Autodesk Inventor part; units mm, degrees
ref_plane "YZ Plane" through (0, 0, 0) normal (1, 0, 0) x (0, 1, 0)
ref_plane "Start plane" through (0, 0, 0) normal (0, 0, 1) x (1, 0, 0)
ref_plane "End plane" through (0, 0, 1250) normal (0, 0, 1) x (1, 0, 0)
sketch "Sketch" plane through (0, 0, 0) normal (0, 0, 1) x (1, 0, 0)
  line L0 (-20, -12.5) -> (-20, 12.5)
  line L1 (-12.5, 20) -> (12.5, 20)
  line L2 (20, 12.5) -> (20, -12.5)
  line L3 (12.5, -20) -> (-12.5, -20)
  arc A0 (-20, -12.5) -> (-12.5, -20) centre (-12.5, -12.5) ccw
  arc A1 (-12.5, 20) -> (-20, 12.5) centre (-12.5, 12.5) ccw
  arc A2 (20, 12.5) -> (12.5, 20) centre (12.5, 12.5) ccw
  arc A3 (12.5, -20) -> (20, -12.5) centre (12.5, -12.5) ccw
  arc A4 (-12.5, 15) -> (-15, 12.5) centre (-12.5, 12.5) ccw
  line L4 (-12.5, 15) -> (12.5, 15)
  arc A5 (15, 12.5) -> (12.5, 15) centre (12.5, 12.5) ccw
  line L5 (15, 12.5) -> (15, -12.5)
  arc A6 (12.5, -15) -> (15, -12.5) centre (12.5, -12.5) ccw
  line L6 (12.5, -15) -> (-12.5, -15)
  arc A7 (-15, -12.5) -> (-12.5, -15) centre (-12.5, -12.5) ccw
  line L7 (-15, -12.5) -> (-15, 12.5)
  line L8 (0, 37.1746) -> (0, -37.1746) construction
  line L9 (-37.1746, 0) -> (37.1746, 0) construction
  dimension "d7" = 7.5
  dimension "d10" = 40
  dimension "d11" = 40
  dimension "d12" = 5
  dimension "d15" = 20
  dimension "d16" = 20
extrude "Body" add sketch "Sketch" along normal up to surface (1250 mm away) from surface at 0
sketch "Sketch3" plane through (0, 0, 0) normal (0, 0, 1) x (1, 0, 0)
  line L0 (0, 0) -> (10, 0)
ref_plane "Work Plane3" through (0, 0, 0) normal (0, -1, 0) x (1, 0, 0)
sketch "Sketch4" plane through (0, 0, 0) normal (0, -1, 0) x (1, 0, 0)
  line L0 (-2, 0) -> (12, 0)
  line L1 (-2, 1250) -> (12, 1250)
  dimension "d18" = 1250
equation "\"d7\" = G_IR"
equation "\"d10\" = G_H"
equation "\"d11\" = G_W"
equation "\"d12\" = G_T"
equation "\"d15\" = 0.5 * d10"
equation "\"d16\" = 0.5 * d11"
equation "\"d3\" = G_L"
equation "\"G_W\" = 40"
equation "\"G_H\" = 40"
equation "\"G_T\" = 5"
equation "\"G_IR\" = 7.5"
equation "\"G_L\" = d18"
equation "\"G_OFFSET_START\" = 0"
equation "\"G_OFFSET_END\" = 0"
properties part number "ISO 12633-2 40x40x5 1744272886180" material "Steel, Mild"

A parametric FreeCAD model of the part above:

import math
import FreeCAD as App
import Part
import Sketcher

V = App.Vector

doc = App.newDocument("Part")
params = doc.addObject("Spreadsheet::Sheet", "Params")
for row, (alias, value) in enumerate([
    ("sketch1_radius", "7.5 mm"),
    ("sketch1_radius2", "2.5 mm"),
    ("pad1_length", "1250 mm"),
], start=1):
    params.set(f"A{row}", alias)
    params.set(f"B{row}", "=" + value)
    params.setAlias(f"B{row}", alias)

body = doc.addObject("PartDesign::Body", "Body")

sketch1 = body.newObject("Sketcher::SketchObject", "Sketch")
sketch1.AttachmentSupport = (doc.getObject("XY_Plane"), [""])
sketch1.MapMode = "FlatFace"
sketch1.addGeometry([
    Part.LineSegment(V(-20, 12.5, 0), V(-20, -12.5, 0)),
    Part.ArcOfCircle(Part.Circle(V(-12.5, -12.5, 0), V(0, 0, 1), 7.5), math.radians(180), math.radians(270)),
    Part.LineSegment(V(-12.5, -20, 0), V(12.5, -20, 0)),
    Part.ArcOfCircle(Part.Circle(V(12.5, -12.5, 0), V(0, 0, 1), 7.5), math.radians(-90), math.radians(0)),
    Part.LineSegment(V(20, -12.5, 0), V(20, 12.5, 0)),
    Part.ArcOfCircle(Part.Circle(V(12.5, 12.5, 0), V(0, 0, 1), 7.5), math.radians(0), math.radians(90)),
    Part.LineSegment(V(12.5, 20, 0), V(-12.5, 20, 0)),
    Part.ArcOfCircle(Part.Circle(V(-12.5, 12.5, 0), V(0, 0, 1), 7.5), math.radians(90), math.radians(180)),
    Part.ArcOfCircle(Part.Circle(V(-12.5, 12.5, 0), V(0, 0, 1), 2.5), math.radians(90), math.radians(180)),
    Part.LineSegment(V(-12.5, 15, 0), V(12.5, 15, 0)),
    Part.ArcOfCircle(Part.Circle(V(12.5, 12.5, 0), V(0, 0, 1), 2.5), math.radians(0), math.radians(90)),
    Part.LineSegment(V(15, 12.5, 0), V(15, -12.5, 0)),
    Part.ArcOfCircle(Part.Circle(V(12.5, -12.5, 0), V(0, 0, 1), 2.5), math.radians(-90), math.radians(0)),
    Part.LineSegment(V(12.5, -15, 0), V(-12.5, -15, 0)),
    Part.ArcOfCircle(Part.Circle(V(-12.5, -12.5, 0), V(0, 0, 1), 2.5), math.radians(180), math.radians(270)),
    Part.LineSegment(V(-15, -12.5, 0), V(-15, 12.5, 0)),
], False)
sketch1.addConstraint([
    Sketcher.Constraint("Tangent", 0, 2, 1, 1),
    Sketcher.Constraint("Tangent", 1, 2, 2, 1),
    Sketcher.Constraint("Tangent", 2, 2, 3, 1),
    Sketcher.Constraint("Tangent", 3, 2, 4, 1),
    Sketcher.Constraint("Tangent", 4, 2, 5, 1),
    Sketcher.Constraint("Tangent", 5, 2, 6, 1),
    Sketcher.Constraint("Tangent", 6, 2, 7, 1),
    Sketcher.Constraint("Tangent", 7, 2, 0, 1),
    Sketcher.Constraint("Tangent", 8, 1, 9, 1),
    Sketcher.Constraint("Tangent", 9, 2, 10, 2),
    Sketcher.Constraint("Tangent", 10, 1, 11, 1),
    Sketcher.Constraint("Tangent", 11, 2, 12, 2),
    Sketcher.Constraint("Tangent", 12, 1, 13, 1),
    Sketcher.Constraint("Tangent", 13, 2, 14, 2),
    Sketcher.Constraint("Tangent", 14, 1, 15, 1),
    Sketcher.Constraint("Tangent", 15, 2, 8, 2),
    Sketcher.Constraint("Vertical", 0),
    Sketcher.Constraint("Horizontal", 2),
    Sketcher.Constraint("Vertical", 4),
    Sketcher.Constraint("Horizontal", 6),
    Sketcher.Constraint("Horizontal", 9),
    Sketcher.Constraint("Vertical", 11),
    Sketcher.Constraint("Horizontal", 13),
    Sketcher.Constraint("Vertical", 15),
    Sketcher.Constraint("Coincident", 8, 3, 7, 3),
    Sketcher.Constraint("Coincident", 10, 3, 5, 3),
    Sketcher.Constraint("Coincident", 12, 3, 3, 3),
    Sketcher.Constraint("Equal", 1, 3),
    Sketcher.Constraint("Equal", 3, 5),
    Sketcher.Constraint("Equal", 5, 7),
    Sketcher.Constraint("Equal", 12, 14),
    Sketcher.Constraint("Symmetric", 1, 3, 5, 3, -1, 1),
    Sketcher.Constraint("Equal", 13, 0),
    Sketcher.Constraint("Radius", 1, 7.5),
    Sketcher.Constraint("Radius", 8, 2.5),
    Sketcher.Constraint("DistanceX", 0, 2, -1, 1, 20.0),
])
sketch1.setExpression("Constraints[33]", "Params.sketch1_radius")
sketch1.setExpression("Constraints[34]", "Params.sketch1_radius2")
pad1 = body.newObject("PartDesign::Pad", "Pad")
pad1.Profile = sketch1
pad1.setExpression("Length", "Params.pad1_length")

doc.recompute()
